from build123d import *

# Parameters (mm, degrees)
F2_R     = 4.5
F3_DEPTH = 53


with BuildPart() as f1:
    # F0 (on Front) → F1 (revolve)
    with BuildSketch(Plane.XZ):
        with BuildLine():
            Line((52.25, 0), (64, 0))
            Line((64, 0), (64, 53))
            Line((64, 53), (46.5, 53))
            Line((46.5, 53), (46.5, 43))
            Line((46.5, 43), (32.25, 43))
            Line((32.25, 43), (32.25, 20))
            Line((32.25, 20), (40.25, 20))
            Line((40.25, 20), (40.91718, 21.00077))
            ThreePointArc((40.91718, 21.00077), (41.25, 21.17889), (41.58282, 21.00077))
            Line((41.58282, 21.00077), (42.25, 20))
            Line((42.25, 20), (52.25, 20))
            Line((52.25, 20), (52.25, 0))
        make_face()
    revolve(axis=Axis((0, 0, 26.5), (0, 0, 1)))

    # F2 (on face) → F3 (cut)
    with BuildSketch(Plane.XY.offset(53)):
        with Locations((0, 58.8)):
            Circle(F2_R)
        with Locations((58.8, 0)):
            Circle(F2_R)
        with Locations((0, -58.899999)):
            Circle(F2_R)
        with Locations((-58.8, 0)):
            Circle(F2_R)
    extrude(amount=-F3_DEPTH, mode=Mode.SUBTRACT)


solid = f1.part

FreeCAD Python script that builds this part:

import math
import FreeCAD as App
import Part
import Sketcher

V = App.Vector
Q = App.Units.Quantity

doc = App.newDocument("Part")
body = doc.addObject("PartDesign::Body", "Body")

sketch1 = doc.addObject("Sketcher::SketchObject", "Sketch")
body.addObject(sketch1)
sketch1.AttachmentSupport = (doc.XZ_Plane, [""])
sketch1.MapMode = "FlatFace"
sketch1.addGeometry(Part.LineSegment(V(52.25, 0, 0), V(64, 0, 0)), False)
sketch1.addGeometry(Part.LineSegment(V(64, 0, 0), V(64, 53, 0)), False)
sketch1.addGeometry(Part.LineSegment(V(64, 53, 0), V(46.5, 53, 0)), False)
sketch1.addGeometry(Part.LineSegment(V(46.5, 53, 0), V(46.5, 43, 0)), False)
sketch1.addGeometry(Part.LineSegment(V(46.5, 43, 0), V(32.25, 43, 0)), False)
sketch1.addGeometry(Part.LineSegment(V(32.25, 43, 0), V(32.25, 20, 0)), False)
sketch1.addGeometry(Part.LineSegment(V(32.25, 20, 0), V(40.25, 20, 0)), False)
sketch1.addGeometry(Part.LineSegment(V(40.25, 20, 0), V(40.92, 21, 0)), False)
sketch1.addGeometry(Part.ArcOfCircle(Part.Circle(V(41.25, 20.78, 0), V(0, 0, 1), 0.4), math.radians(34), math.radians(146)), False)
sketch1.addGeometry(Part.LineSegment(V(41.58, 21, 0), V(42.25, 20, 0)), False)
sketch1.addGeometry(Part.LineSegment(V(42.25, 20, 0), V(52.25, 20, 0)), False)
sketch1.addGeometry(Part.LineSegment(V(52.25, 20, 0), V(52.25, 0, 0)), False)
sketch1.addConstraint(Sketcher.Constraint("Coincident", 0, 2, 1, 1))
sketch1.addConstraint(Sketcher.Constraint("Coincident", 1, 2, 2, 1))
sketch1.addConstraint(Sketcher.Constraint("Coincident", 2, 2, 3, 1))
sketch1.addConstraint(Sketcher.Constraint("Coincident", 3, 2, 4, 1))
sketch1.addConstraint(Sketcher.Constraint("Coincident", 4, 2, 5, 1))
sketch1.addConstraint(Sketcher.Constraint("Coincident", 5, 2, 6, 1))
sketch1.addConstraint(Sketcher.Constraint("Coincident", 6, 2, 7, 1))
sketch1.addConstraint(Sketcher.Constraint("Tangent", 7, 2, 8, 2))
sketch1.addConstraint(Sketcher.Constraint("Tangent", 8, 1, 9, 1))
sketch1.addConstraint(Sketcher.Constraint("Coincident", 9, 2, 10, 1))
sketch1.addConstraint(Sketcher.Constraint("Coincident", 10, 2, 11, 1))
sketch1.addConstraint(Sketcher.Constraint("Coincident", 11, 2, 0, 1))
sketch1.addConstraint(Sketcher.Constraint("Horizontal", 0))
sketch1.addConstraint(Sketcher.Constraint("Vertical", 1))
sketch1.addConstraint(Sketcher.Constraint("Horizontal", 2))
sketch1.addConstraint(Sketcher.Constraint("Vertical", 3))
sketch1.addConstraint(Sketcher.Constraint("Horizontal", 4))
sketch1.addConstraint(Sketcher.Constraint("Vertical", 5))
sketch1.addConstraint(Sketcher.Constraint("Horizontal", 6))
sketch1.addConstraint(Sketcher.Constraint("Horizontal", 10))
sketch1.addConstraint(Sketcher.Constraint("Vertical", 11))
sketch1.addConstraint(Sketcher.Constraint("PointOnObject", 0, 2, -1))
sketch1.addConstraint(Sketcher.Constraint("Horizontal", 7, 2, 8, 1))
sketch1.addConstraint(Sketcher.Constraint("Horizontal", 6, 2, 9, 2))
sketch1.addConstraint(Sketcher.Constraint("Equal", 10, 3))
sketch1.addConstraint(Sketcher.Constraint("Radius", 8, Q("0.4 mm")))
sketch1.addConstraint(Sketcher.Constraint("DistanceX", 6, 1, 6, 2, Q("8 mm")))
sketch1.addConstraint(Sketcher.Constraint("DistanceX", 10, 1, 10, 2, Q("10 mm")))
sketch1.addConstraint(Sketcher.Constraint("DistanceY", 1, 1, 1, 2, Q("53 mm")))
sketch1.addConstraint(Sketcher.Constraint("DistanceY", 5, 2, 5, 1, Q("23 mm")))
sketch1.addConstraint(Sketcher.Constraint("DistanceX", 2, 2, 2, 1, Q("17.5 mm")))
sketch1.addConstraint(Sketcher.Constraint("DistanceX", -1, 1, 0, 2, Q("64 mm")))
sketch1.addConstraint(Sketcher.Constraint("DistanceX", 4, 2, 8, 3, Q("9 mm")))
sketch1.addConstraint(Sketcher.Constraint("DistanceX", 0, 1, 0, 2, Q("11.75 mm")))
sketch1.addConstraint(Sketcher.Constraint("DistanceY", -1, 1, 8, 3, Q("20.77889 mm")))
revolution = doc.addObject("PartDesign::Revolution", "Revolution")
body.addObject(revolution)
revolution.Profile = sketch1
revolution.ReferenceAxis = (sketch1, ["V_Axis"])
revolution.Angle = 360

sketch2 = doc.addObject("Sketcher::SketchObject", "Sketch001")
body.addObject(sketch2)
sketch2.AttachmentSupport = (doc.XY_Plane, [""])
sketch2.MapMode = "FlatFace"
sketch2.AttachmentOffset = App.Placement(V(0, 0, 53), App.Rotation())
sketch2.addGeometry(Part.Circle(V(0, 58.8, 0), V(0, 0, 1), 4.5), False)
sketch2.addGeometry(Part.Circle(V(58.8, 0, 0), V(0, 0, 1), 4.5), False)
sketch2.addGeometry(Part.Circle(V(0, -58.9, 0), V(0, 0, 1), 4.5), False)
sketch2.addGeometry(Part.Circle(V(-58.8, 0, 0), V(0, 0, 1), 4.5), False)
sketch2.addConstraint(Sketcher.Constraint("Equal", 0, 1))
sketch2.addConstraint(Sketcher.Constraint("Equal", 1, 2))
sketch2.addConstraint(Sketcher.Constraint("Equal", 2, 3))
sketch2.addConstraint(Sketcher.Constraint("Symmetric", 1, 3, 3, 3, -1, 1))
sketch2.addConstraint(Sketcher.Constraint("PointOnObject", 0, 3, -2))
sketch2.addConstraint(Sketcher.Constraint("PointOnObject", 1, 3, -1))
sketch2.addConstraint(Sketcher.Constraint("PointOnObject", 2, 3, -2))
sketch2.addConstraint(Sketcher.Constraint("Diameter", 0, Q("9 mm")))
sketch2.addConstraint(Sketcher.Constraint("DistanceY", -1, 1, 0, 3, Q("58.8 mm")))
sketch2.addConstraint(Sketcher.Constraint("DistanceX", -1, 1, 1, 3, Q("58.8 mm")))
sketch2.addConstraint(Sketcher.Constraint("DistanceY", 2, 3, -1, 1, Q("58.899999 mm")))
pocket1 = doc.addObject("PartDesign::Pocket", "Pocket")
body.addObject(pocket1)
pocket1.Profile = sketch2
pocket1.Length = 53

doc.recompute()
